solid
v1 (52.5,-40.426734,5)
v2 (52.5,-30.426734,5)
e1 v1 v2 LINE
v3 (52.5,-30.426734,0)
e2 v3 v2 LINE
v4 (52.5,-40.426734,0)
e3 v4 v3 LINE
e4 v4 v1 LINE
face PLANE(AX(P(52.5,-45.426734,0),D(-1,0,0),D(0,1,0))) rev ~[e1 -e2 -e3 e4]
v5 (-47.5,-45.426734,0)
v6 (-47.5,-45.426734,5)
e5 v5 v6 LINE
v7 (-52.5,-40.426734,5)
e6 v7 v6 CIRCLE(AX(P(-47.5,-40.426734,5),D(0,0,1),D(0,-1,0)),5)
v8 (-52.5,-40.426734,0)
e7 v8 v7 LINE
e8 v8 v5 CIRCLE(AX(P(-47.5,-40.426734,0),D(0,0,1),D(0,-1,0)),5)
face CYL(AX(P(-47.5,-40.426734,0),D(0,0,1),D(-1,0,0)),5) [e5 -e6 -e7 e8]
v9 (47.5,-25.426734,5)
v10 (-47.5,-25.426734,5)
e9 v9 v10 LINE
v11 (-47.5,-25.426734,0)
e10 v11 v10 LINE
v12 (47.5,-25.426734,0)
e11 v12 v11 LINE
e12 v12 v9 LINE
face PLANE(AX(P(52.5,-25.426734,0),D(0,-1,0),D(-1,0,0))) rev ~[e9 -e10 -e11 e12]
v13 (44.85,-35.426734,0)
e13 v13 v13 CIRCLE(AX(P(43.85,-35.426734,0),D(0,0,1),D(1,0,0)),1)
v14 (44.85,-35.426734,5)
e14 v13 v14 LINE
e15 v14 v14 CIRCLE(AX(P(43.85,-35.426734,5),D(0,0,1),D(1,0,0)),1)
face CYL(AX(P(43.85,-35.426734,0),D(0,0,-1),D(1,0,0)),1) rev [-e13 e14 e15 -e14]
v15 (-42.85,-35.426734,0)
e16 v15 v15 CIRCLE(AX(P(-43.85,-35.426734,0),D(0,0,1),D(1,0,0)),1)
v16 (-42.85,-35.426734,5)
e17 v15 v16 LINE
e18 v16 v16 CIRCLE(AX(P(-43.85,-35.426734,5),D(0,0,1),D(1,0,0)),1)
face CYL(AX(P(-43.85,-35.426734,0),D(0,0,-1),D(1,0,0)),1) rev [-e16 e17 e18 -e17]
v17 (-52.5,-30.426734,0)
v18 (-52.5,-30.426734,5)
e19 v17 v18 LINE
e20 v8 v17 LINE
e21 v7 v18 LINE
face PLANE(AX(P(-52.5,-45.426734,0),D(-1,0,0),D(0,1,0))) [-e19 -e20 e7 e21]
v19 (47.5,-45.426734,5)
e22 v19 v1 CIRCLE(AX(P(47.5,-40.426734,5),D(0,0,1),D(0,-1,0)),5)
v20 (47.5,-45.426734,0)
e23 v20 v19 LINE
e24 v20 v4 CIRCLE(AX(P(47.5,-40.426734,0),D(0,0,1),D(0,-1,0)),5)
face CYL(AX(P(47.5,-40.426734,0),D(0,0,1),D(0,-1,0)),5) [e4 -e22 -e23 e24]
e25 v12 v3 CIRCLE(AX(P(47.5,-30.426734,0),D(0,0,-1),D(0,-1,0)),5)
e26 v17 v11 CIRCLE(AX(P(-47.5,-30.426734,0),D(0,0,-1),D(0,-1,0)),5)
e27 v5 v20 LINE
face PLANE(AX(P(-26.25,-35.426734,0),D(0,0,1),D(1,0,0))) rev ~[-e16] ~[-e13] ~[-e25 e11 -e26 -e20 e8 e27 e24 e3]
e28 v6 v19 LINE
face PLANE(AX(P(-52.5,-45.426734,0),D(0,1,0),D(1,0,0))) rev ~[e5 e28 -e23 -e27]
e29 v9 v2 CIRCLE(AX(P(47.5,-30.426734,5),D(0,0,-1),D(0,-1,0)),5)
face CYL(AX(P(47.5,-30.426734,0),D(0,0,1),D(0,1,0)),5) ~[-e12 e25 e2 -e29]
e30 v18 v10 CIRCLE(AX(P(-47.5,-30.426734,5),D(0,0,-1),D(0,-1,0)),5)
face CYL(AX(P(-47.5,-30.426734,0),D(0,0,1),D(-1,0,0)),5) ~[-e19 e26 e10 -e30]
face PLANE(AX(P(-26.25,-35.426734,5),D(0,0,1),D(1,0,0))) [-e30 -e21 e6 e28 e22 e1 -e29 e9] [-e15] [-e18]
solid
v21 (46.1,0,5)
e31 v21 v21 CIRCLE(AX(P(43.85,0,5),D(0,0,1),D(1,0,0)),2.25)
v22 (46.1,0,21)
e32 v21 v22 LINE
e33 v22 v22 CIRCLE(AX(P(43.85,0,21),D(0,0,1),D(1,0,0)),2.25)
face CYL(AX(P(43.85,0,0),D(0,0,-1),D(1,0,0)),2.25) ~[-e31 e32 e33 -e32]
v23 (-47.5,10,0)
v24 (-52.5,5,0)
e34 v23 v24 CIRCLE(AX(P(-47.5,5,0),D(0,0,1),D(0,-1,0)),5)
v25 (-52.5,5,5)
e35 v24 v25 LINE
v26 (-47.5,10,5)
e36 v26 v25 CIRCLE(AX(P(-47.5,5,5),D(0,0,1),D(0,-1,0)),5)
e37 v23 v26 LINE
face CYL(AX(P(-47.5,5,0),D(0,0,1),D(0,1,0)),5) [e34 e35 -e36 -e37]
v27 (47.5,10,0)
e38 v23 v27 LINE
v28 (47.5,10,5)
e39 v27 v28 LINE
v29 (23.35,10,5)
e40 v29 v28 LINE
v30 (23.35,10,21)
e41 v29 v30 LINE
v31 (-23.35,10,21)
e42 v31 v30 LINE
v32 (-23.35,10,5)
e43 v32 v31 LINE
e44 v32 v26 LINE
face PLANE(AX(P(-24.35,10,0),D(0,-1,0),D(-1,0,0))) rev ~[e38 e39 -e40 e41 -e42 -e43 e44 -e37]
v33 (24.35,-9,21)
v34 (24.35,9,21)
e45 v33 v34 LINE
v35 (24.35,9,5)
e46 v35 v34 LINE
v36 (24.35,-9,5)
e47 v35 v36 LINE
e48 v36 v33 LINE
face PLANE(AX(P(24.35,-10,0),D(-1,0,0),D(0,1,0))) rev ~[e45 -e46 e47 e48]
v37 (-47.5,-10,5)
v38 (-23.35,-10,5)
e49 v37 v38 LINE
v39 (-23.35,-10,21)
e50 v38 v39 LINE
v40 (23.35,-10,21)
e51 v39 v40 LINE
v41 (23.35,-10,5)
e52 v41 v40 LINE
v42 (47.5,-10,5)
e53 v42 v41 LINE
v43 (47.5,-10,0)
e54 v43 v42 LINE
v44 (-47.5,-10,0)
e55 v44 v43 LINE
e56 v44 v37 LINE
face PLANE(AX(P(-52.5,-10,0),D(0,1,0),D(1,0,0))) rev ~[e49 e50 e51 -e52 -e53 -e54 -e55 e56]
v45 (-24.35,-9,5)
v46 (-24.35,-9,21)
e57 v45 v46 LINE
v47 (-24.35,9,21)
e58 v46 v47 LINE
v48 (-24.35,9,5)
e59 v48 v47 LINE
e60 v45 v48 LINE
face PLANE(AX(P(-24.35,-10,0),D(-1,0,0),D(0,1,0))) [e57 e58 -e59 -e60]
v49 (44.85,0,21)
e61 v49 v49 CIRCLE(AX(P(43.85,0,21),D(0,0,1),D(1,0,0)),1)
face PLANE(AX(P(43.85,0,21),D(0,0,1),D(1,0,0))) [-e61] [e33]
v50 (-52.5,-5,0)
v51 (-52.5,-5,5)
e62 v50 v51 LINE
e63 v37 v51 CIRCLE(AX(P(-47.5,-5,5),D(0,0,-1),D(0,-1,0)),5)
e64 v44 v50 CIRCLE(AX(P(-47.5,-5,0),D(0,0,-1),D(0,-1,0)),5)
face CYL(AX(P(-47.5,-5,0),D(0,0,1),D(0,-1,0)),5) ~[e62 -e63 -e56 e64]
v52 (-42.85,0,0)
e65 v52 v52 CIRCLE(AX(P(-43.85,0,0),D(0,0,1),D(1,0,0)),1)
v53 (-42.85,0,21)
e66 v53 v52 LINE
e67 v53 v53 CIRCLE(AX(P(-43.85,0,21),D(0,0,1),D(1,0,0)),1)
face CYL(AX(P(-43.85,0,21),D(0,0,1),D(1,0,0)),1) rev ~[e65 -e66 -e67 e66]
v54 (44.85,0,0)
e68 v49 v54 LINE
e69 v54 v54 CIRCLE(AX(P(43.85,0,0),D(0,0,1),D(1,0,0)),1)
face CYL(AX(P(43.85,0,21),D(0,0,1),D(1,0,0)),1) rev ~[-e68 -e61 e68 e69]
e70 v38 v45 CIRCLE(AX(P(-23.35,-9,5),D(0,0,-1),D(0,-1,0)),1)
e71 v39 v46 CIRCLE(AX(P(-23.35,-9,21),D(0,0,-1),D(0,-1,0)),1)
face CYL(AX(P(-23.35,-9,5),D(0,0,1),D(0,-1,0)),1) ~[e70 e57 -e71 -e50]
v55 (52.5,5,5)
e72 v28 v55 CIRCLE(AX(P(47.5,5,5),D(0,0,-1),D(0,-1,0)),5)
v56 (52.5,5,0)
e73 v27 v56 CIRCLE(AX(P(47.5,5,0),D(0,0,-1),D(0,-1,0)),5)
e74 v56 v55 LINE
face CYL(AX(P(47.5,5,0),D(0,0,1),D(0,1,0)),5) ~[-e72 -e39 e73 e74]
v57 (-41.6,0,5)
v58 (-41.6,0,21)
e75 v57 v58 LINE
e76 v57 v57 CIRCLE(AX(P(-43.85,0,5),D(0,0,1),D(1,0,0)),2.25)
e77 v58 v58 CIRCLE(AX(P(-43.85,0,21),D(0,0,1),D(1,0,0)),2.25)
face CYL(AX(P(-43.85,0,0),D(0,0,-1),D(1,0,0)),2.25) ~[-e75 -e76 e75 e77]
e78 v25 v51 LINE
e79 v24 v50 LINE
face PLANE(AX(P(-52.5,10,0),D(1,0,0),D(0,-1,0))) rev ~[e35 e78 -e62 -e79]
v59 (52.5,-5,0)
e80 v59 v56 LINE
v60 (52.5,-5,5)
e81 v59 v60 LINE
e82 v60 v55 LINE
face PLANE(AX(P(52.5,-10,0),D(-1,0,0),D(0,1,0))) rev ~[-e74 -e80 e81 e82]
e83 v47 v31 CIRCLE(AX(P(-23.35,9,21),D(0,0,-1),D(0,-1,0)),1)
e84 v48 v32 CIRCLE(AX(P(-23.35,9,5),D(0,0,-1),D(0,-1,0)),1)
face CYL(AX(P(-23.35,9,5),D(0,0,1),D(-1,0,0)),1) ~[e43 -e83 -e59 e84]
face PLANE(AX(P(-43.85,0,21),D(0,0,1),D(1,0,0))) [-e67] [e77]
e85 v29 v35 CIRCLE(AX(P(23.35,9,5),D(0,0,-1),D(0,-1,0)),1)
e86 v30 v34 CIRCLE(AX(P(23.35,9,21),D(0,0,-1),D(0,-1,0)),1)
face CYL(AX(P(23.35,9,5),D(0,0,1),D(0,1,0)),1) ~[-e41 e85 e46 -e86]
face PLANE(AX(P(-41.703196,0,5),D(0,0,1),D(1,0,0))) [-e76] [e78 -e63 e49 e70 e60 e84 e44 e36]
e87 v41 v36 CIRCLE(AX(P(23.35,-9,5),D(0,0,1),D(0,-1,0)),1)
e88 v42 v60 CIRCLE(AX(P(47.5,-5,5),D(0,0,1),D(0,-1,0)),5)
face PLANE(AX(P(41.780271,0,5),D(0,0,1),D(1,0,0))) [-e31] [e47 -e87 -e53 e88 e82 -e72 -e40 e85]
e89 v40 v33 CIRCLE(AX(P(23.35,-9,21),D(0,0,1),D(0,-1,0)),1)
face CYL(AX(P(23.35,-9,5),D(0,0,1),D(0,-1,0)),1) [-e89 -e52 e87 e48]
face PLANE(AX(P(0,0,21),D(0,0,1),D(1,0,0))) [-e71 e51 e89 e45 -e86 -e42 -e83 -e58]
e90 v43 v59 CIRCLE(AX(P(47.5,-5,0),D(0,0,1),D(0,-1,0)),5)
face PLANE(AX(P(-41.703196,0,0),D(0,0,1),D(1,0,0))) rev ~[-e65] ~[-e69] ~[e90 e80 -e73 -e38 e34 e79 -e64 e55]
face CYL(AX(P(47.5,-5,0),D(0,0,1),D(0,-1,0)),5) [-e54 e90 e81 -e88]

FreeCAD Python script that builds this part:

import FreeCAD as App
import Part
import Sketcher
from FreeCAD import Vector
Q = App.Units.Quantity


def edges_at(feature, points):
    """Names of the edges that pass closest to the given points."""
    edges = feature.Shape.Edges
    near = lambda p: min(range(len(edges)), key=lambda i: edges[i].distToShape(Part.Vertex(*p))[0])
    return sorted({f"Edge{near(p) + 1}" for p in points})


def add_polygon(sketch, points):
    """Adds a closed chain of lines whose ends are joined by coincident constraints."""
    first, n = sketch.GeometryCount, len(points)
    for a, b in zip(points, points[1:] + points[:1]):
        sketch.addGeometry(Part.LineSegment(App.Vector(*a, 0), App.Vector(*b, 0)), False)
    for i in range(n):
        sketch.addConstraint(Sketcher.Constraint("Coincident", first + i, 2, first + (i + 1) % n, 1))

doc = App.newDocument("Part")
body = doc.addObject("PartDesign::Body", "Body")

sketch1 = body.newObject("Sketcher::SketchObject", "Sketch")
sketch1.AttachmentSupport = (doc.getObject("XY_Plane"), [""])
sketch1.MapMode = "FlatFace"
add_polygon(sketch1, [(-24, 10), (-24, -10), (24, -10), (24, 10)])
sketch1.addConstraint([
    Sketcher.Constraint("Vertical", 0),
    Sketcher.Constraint("Horizontal", 1),
    Sketcher.Constraint("Vertical", 2),
    Sketcher.Constraint("Horizontal", 3),
    Sketcher.Constraint("Symmetric", 0, 2, 2, 2, -1, 1),
    Sketcher.Constraint("DistanceY", 0, 2, 0, 1, Q("20 mm")),
    Sketcher.Constraint("DistanceX", 1, 1, 1, 2, Q("48.7 mm")),
])
pad1 = body.newObject("PartDesign::Pad", "Pad")
pad1.Profile = sketch1
pad1.Length = 21

sketch2 = body.newObject("Sketcher::SketchObject", "Sketch001")
sketch2.AttachmentSupport = (doc.getObject("XY_Plane"), [""])
sketch2.MapMode = "FlatFace"
add_polygon(sketch2, [(-52.5, -10), (-24.4, -10), (-24.4, 10), (-52.5, 10)])
sketch2.addGeometry(Part.Circle(Vector(-43.9, 0, 0), Vector(0, 0, 1), 2.2), False)
add_polygon(sketch2, [(52.5, 10), (24.4, 10), (24.4, -10), (52.5, -10)])
sketch2.addGeometry(Part.Circle(Vector(43.9, 0, 0), Vector(0, 0, 1), 2.2), False)
sketch2.addConstraint([
    Sketcher.Constraint("Horizontal", 0),
    Sketcher.Constraint("Vertical", 1),
    Sketcher.Constraint("Horizontal", 2),
    Sketcher.Constraint("Vertical", 3),
    Sketcher.Constraint("Horizontal", 5),
    Sketcher.Constraint("Vertical", 6),
    Sketcher.Constraint("Horizontal", 7),
    Sketcher.Constraint("Vertical", 8),
    Sketcher.Constraint("Equal", 4, 9),
    Sketcher.Constraint("Symmetric", 4, 3, 9, 3, -1, 1),
    Sketcher.Constraint("Symmetric", 0, 2, 5, 2, -1, 1),
    Sketcher.Constraint("Symmetric", 2, 2, 7, 2, -1, 1),
    Sketcher.Constraint("PointOnObject", 4, 3, -1),
    Sketcher.Constraint("Horizontal", 2, 2, 5, 2),
    Sketcher.Constraint("Diameter", 4, Q("4.5 mm")),
    Sketcher.Constraint("DistanceY", 1, 1, 1, 2, Q("20 mm")),
    Sketcher.Constraint("DistanceX", 0, 1, 0, 2, Q("28.15 mm")),
    Sketcher.Constraint("DistanceX", 2, 2, -1, 1, Q("52.5 mm")),
    Sketcher.Constraint("DistanceX", 4, 3, 9, 3, Q("87.7 mm")),
])
pad2 = body.newObject("PartDesign::Pad", "Pad001")
pad2.Profile = sketch2
pad2.Length = 5

sketch3 = body.newObject("Sketcher::SketchObject", "Sketch002")
sketch3.AttachmentSupport = (doc.getObject("XY_Plane"), [""])
sketch3.MapMode = "FlatFace"
sketch3.addGeometry([
    Part.Circle(Vector(-43.9, 0, 0), Vector(0, 0, 1), 2.2),
    Part.Circle(Vector(43.9, 0, 0), Vector(0, 0, 1), 2.2),
], False)
sketch3.addConstraint([
    Sketcher.Constraint("Equal", 0, 1),
    Sketcher.Constraint("Symmetric", 0, 3, 1, 3, -1, 1),
    Sketcher.Constraint("PointOnObject", 0, 3, -1),
    Sketcher.Constraint("Diameter", 0, Q("4.5 mm")),
    Sketcher.Constraint("DistanceX", 0, 3, 1, 3, Q("87.7 mm")),
])
pad3 = body.newObject("PartDesign::Pad", "Pad002")
pad3.Profile = sketch3
pad3.Length = 21
doc.recompute()

fillet = body.newObject("PartDesign::Fillet", "Fillet")
fillet.Base = (pad3, edges_at(pad3, [
    (-52.5, -10, 2.5),
    (52.5, -10, 2.5),
    (52.5, 10, 2.5),
    (-52.5, 10, 2.5),
]))
fillet.Radius = 5
doc.recompute()

fillet2 = body.newObject("PartDesign::Fillet", "Fillet001")
fillet2.Base = (fillet, edges_at(fillet, [
    (24.35, -10, 13),
    (24.35, 10, 13),
    (-24.35, -10, 13),
    (-24.35, 10, 13),
]))
fillet2.Radius = 1

sketch4 = body.newObject("Sketcher::SketchObject", "Sketch003")
sketch4.AttachmentSupport = (doc.getObject("XY_Plane"), [""])
sketch4.MapMode = "FlatFace"
sketch4.AttachmentOffset = App.Placement(Vector(0, 0, 21), App.Rotation())
sketch4.addGeometry([
    Part.Circle(Vector(-43.9, 0, 0), Vector(0, 0, 1), 1),
    Part.Circle(Vector(43.9, 0, 0), Vector(0, 0, 1), 1),
], False)
sketch4.addConstraint([
    Sketcher.Constraint("Equal", 0, 1),
    Sketcher.Constraint("Symmetric", 0, 3, 1, 3, -1, 1),
    Sketcher.Constraint("PointOnObject", 0, 3, -1),
    Sketcher.Constraint("Diameter", 0, Q("2 mm")),
    Sketcher.Constraint("DistanceX", 0, 3, 1, 3, Q("87.7 mm")),
])
pocket1 = body.newObject("PartDesign::Pocket", "Pocket")
pocket1.Profile = sketch4
pocket1.Length = 22.6
body2 = doc.addObject("PartDesign::Body", "Body001")

sketch5 = body2.newObject("Sketcher::SketchObject", "Sketch004")
sketch5.AttachmentSupport = (doc.getObject("XY_Plane001"), [""])
sketch5.MapMode = "FlatFace"
add_polygon(sketch5, [(-52.5, -25.4), (-52.5, -45.4), (52.5, -45.4), (52.5, -25.4)])
sketch5.addGeometry(Part.Circle(Vector(-43.9, -35.4, 0), Vector(0, 0, 1), 1), False)
sketch5.addGeometry(Part.Circle(Vector(43.9, -35.4, 0), Vector(0, 0, 1), 1), False)
sketch5.addConstraint([
    Sketcher.Constraint("Vertical", 0),
    Sketcher.Constraint("Horizontal", 1),
    Sketcher.Constraint("Vertical", 2),
    Sketcher.Constraint("Horizontal", 3),
    Sketcher.Constraint("Equal", 4, 5),
    Sketcher.Constraint("Symmetric", 4, 3, 5, 3, -2),
    Sketcher.Constraint("Diameter", 4, Q("2 mm")),
    Sketcher.Constraint("DistanceX", 1, 1, 1, 2, Q("105 mm")),
    Sketcher.Constraint("DistanceY", 0, 2, 0, 1, Q("20 mm")),
    Sketcher.Constraint("DistanceY", 0, 2, 4, 3, Q("10 mm")),
    Sketcher.Constraint("DistanceX", 0, 2, -1, 1, Q("52.5 mm")),
    Sketcher.Constraint("DistanceX", 4, 3, 5, 3, Q("87.7 mm")),
    Sketcher.Constraint("DistanceY", 4, 3, -1, 1, Q("35.426734 mm")),
])
pad4 = body2.newObject("PartDesign::Pad", "Pad003")
pad4.Profile = sketch5
pad4.Length = 5
doc.recompute()

fillet3 = body2.newObject("PartDesign::Fillet", "Fillet002")
fillet3.Base = (pad4, edges_at(pad4, [
    (-52.5, -45.427, 2.5),
    (-52.5, -25.427, 2.5),
    (52.5, -45.427, 2.5),
    (52.5, -25.427, 2.5),
]))
fillet3.Radius = 5

doc.recompute()
